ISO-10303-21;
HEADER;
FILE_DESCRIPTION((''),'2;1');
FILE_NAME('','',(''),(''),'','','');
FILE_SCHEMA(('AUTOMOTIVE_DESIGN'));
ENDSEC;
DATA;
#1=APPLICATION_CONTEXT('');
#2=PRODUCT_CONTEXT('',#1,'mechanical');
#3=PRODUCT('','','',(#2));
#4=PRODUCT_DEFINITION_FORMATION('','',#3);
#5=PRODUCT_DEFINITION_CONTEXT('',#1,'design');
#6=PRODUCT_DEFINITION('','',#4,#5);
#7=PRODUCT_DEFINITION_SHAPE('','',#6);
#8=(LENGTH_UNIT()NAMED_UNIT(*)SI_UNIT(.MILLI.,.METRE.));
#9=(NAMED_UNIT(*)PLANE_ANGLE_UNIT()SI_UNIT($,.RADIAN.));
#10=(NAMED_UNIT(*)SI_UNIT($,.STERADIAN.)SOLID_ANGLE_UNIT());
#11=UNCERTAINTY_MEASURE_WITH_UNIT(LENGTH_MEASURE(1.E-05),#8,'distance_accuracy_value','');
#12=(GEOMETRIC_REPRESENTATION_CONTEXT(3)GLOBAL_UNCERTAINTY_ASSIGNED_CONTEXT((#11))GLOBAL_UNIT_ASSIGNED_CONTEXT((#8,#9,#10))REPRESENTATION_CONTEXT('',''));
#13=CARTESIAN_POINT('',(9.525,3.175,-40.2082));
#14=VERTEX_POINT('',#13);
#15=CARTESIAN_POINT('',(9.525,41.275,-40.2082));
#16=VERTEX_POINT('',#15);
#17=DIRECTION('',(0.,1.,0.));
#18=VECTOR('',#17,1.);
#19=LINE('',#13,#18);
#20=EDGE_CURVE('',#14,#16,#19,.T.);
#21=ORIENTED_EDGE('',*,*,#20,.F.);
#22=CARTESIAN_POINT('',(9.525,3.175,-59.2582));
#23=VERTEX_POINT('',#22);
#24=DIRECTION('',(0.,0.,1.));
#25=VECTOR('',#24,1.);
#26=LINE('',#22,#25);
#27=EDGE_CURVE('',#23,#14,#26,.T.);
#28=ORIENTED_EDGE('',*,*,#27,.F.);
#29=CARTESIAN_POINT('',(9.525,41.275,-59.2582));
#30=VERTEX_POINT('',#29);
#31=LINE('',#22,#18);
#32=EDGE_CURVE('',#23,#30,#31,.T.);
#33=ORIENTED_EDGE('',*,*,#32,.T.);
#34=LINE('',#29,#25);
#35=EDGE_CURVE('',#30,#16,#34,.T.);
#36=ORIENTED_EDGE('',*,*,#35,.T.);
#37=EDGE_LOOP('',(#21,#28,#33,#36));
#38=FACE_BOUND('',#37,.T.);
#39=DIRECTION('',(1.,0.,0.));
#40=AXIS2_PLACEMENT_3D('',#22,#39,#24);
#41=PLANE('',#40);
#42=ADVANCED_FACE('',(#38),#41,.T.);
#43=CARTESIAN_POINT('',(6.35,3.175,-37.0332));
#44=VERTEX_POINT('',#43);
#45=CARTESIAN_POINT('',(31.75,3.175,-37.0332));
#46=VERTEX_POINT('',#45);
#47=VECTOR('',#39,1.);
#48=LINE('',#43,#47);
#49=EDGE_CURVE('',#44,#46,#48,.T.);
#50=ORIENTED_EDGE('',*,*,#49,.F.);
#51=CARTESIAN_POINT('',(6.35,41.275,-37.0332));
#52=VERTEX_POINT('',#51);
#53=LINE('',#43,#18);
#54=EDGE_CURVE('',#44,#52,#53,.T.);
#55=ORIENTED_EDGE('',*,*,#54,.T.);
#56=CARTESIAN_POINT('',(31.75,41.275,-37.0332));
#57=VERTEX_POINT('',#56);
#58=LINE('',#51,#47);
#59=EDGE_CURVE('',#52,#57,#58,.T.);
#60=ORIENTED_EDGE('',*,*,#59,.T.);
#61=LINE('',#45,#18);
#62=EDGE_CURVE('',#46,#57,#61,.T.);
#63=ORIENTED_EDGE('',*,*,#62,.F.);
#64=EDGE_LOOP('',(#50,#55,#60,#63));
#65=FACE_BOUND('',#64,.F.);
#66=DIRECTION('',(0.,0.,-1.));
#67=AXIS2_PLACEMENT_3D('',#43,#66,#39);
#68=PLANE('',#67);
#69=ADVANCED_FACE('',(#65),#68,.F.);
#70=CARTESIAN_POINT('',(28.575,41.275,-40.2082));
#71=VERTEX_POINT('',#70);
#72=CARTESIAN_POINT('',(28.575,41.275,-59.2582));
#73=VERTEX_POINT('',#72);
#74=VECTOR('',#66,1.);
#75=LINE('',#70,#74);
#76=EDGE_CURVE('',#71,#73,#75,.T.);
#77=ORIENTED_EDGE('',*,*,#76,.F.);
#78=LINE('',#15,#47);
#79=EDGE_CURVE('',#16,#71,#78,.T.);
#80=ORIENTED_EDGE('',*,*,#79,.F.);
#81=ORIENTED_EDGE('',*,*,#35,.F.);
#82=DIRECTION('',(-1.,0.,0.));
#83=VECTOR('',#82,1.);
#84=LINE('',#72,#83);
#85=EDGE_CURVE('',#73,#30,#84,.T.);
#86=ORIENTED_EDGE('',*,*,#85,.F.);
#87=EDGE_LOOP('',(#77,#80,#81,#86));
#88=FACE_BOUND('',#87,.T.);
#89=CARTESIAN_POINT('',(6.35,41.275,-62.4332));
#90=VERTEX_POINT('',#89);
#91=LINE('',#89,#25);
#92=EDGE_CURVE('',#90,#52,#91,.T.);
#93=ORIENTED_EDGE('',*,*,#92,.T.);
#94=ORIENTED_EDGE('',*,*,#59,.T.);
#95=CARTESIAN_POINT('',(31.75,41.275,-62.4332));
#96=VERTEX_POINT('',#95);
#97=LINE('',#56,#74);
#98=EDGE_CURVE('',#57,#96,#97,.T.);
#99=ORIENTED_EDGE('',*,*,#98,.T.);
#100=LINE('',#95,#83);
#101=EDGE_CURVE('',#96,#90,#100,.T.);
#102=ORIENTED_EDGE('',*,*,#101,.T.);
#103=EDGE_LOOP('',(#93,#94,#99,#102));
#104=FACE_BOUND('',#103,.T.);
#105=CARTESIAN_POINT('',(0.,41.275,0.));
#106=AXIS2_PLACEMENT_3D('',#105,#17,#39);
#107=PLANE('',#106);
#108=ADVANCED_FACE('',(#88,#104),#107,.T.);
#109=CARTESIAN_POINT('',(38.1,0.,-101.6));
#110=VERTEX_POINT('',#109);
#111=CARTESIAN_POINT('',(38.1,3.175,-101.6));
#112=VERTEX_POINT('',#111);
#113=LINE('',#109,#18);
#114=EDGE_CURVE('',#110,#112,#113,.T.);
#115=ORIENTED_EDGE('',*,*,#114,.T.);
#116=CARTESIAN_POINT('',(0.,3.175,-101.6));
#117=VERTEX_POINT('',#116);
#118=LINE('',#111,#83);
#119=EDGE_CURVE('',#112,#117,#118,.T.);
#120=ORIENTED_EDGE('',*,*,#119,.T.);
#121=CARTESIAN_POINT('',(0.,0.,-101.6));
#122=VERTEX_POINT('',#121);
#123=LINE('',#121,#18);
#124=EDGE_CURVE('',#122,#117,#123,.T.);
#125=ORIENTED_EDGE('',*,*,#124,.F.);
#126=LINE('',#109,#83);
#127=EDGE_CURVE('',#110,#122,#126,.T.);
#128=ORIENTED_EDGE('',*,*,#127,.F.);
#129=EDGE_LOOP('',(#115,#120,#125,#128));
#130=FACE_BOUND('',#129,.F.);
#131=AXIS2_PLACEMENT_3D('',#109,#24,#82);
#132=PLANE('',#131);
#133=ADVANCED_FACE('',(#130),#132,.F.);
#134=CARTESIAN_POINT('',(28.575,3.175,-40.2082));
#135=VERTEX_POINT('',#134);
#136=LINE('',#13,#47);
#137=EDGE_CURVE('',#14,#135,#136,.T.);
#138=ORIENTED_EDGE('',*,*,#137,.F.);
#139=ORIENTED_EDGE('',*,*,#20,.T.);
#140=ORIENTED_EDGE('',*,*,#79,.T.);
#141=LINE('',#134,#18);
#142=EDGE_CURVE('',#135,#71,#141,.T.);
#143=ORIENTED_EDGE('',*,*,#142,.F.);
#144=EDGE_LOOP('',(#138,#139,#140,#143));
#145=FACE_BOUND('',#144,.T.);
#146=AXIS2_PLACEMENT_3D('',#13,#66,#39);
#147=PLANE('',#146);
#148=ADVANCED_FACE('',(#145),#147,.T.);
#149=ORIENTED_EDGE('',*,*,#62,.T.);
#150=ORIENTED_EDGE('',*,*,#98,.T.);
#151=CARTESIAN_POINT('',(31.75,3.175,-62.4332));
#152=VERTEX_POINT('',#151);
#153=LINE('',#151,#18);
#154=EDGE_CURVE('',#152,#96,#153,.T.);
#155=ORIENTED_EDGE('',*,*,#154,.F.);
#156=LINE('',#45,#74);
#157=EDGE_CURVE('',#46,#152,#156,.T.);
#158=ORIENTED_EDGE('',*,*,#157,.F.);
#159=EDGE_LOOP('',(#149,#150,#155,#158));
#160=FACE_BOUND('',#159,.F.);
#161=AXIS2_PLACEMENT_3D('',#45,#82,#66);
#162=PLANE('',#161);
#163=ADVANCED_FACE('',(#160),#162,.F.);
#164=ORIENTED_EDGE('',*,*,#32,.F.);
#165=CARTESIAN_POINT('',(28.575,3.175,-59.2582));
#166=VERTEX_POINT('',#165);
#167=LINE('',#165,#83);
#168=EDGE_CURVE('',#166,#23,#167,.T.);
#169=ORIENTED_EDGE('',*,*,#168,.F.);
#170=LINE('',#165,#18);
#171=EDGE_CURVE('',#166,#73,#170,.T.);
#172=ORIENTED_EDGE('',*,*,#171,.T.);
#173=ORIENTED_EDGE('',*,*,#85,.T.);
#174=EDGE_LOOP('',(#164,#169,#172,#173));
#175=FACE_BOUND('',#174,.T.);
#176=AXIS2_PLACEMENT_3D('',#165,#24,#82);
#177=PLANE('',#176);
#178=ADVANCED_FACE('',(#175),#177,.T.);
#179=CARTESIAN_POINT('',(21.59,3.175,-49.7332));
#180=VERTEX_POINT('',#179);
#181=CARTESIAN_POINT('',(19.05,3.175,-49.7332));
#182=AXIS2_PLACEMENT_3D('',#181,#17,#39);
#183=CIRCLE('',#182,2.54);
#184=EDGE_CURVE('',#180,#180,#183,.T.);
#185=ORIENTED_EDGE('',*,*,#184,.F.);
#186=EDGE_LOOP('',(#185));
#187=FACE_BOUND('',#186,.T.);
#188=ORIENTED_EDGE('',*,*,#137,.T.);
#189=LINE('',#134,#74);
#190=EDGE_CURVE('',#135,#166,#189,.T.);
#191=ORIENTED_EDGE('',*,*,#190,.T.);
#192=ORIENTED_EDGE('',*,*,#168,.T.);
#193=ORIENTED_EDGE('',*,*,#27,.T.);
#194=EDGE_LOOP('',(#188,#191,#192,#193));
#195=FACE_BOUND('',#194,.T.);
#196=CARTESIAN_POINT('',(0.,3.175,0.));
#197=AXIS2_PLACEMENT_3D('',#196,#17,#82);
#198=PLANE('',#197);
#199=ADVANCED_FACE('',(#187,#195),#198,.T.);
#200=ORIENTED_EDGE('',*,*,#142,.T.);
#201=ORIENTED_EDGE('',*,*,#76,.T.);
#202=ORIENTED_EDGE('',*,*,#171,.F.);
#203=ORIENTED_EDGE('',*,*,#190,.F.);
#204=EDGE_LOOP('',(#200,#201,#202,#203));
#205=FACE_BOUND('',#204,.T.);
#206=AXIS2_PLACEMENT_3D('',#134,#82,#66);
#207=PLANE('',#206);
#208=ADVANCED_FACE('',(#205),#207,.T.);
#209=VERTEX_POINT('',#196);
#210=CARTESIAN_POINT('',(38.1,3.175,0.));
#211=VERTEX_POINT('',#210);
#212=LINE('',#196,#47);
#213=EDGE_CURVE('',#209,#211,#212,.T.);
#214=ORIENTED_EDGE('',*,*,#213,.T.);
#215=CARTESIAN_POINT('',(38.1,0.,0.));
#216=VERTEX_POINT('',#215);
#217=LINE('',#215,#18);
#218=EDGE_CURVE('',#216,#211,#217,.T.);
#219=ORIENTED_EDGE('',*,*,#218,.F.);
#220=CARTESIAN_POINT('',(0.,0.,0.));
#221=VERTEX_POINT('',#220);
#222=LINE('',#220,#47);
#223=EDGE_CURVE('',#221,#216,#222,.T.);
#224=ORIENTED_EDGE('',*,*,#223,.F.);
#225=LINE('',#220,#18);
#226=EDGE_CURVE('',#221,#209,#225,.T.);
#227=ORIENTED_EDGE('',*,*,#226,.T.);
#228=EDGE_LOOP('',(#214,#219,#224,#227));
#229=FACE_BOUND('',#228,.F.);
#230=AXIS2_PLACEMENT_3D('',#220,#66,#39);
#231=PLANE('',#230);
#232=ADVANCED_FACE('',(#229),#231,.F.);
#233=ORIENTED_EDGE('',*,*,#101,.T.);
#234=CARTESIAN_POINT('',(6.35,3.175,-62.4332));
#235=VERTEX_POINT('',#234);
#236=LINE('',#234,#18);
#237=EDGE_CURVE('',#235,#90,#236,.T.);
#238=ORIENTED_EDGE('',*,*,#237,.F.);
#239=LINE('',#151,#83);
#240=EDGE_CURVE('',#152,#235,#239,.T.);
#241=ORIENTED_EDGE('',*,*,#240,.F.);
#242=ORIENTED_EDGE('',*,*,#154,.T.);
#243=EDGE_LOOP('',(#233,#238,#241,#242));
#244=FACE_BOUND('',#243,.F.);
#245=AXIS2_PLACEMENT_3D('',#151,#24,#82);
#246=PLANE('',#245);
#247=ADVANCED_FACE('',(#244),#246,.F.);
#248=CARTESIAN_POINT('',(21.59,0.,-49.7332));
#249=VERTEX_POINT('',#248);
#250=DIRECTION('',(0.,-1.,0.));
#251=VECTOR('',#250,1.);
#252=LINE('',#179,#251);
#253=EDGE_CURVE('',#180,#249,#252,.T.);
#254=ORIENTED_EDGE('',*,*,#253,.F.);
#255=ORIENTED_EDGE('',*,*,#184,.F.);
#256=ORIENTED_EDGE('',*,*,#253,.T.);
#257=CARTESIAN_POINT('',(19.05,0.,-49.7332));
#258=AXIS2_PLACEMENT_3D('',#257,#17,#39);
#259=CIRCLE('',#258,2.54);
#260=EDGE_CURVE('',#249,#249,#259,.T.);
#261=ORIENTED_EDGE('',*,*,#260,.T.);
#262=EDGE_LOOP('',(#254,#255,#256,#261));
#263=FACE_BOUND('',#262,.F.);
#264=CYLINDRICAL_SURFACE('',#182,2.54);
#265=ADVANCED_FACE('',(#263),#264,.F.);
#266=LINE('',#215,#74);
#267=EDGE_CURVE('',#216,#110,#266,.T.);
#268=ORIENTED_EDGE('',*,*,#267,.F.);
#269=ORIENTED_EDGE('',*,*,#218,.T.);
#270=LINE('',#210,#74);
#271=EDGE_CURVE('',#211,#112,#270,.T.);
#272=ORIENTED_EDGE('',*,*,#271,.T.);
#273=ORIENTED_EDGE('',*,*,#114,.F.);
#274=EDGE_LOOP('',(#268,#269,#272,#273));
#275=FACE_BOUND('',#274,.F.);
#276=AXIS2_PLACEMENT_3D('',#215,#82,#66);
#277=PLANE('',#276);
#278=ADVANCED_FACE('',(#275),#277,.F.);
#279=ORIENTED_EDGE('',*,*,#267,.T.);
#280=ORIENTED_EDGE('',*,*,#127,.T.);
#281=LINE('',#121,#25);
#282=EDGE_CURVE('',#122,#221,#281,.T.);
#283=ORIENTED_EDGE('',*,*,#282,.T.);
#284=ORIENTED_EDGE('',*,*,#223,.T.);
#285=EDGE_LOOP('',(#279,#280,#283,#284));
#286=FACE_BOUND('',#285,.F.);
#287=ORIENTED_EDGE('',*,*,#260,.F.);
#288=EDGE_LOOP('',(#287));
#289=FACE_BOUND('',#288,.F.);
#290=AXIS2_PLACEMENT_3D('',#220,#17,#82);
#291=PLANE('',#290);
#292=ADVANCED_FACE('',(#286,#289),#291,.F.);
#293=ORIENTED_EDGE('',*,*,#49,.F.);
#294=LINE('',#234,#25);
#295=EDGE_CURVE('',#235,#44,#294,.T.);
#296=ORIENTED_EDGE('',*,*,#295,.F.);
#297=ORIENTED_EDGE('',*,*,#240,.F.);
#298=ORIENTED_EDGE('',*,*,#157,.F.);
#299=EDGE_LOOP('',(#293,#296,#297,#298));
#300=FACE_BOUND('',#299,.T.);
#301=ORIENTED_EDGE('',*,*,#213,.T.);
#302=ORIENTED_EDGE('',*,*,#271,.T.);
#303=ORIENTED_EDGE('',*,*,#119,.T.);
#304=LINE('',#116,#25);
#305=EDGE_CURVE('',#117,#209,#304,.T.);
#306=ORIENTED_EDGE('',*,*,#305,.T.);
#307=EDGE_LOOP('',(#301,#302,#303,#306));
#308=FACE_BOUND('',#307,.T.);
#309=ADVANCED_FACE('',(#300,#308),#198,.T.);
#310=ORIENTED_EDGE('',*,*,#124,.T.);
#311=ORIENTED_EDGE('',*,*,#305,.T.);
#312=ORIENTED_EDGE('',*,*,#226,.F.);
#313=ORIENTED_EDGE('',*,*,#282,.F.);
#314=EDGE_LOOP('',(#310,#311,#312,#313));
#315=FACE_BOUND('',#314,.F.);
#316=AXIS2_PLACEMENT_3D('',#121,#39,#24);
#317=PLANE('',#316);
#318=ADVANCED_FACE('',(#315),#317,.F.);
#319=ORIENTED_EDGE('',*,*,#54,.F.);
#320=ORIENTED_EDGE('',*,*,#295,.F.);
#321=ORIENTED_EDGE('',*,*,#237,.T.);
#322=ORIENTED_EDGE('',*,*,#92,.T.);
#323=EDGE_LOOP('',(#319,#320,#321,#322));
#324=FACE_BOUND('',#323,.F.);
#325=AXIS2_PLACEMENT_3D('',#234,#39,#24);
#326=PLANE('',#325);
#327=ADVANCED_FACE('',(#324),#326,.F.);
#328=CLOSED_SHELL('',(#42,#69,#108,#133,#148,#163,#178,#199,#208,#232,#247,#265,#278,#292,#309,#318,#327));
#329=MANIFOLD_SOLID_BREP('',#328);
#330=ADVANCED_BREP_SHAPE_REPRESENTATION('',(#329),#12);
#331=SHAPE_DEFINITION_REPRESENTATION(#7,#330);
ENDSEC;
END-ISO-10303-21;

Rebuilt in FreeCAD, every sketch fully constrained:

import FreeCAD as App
import Part
import Sketcher
from FreeCAD import Vector
Q = App.Units.Quantity

doc = App.newDocument("Part")
params = doc.addObject("Spreadsheet::Sheet", "Params")
for row, (alias, value) in enumerate([
    ("sketch1_height", "4 in"),
    ("sketch1_width", "1.5 in"),
    ("pad1_length", "0.125 in"),
    ("sketch2_width", "1 in"),
    ("pad2_length", "1.5 in"),
    ("sketch3_diameter", "0.2 in"),
    ("pocket1_length", "0.125 in"),
], start=1):
    params.set(f"A{row}", alias)
    params.set(f"B{row}", "=" + value)
    params.setAlias(f"B{row}", alias)

body = doc.addObject("PartDesign::Body", "Body")

# Sketch on XZ plane
sketch1 = doc.addObject("Sketcher::SketchObject", "Sketch")
body.addObject(sketch1)
sketch1.AttachmentSupport = (doc.XZ_Plane, [""])
sketch1.MapMode = "FlatFace"
sketch1.addGeometry([
    Part.LineSegment(Vector(0, -102, 0), Vector(0, 0, 0)),
    Part.LineSegment(Vector(0, 0, 0), Vector(38, 0, 0)),
    Part.LineSegment(Vector(38, 0, 0), Vector(38, -102, 0)),
    Part.LineSegment(Vector(38, -102, 0), Vector(0, -102, 0)),
], False)
sketch1.addConstraint([
    Sketcher.Constraint("Coincident", 0, 2, 1, 1),
    Sketcher.Constraint("Coincident", 1, 2, 2, 1),
    Sketcher.Constraint("Coincident", 2, 2, 3, 1),
    Sketcher.Constraint("Coincident", 3, 2, 0, 1),
    Sketcher.Constraint("Vertical", 0),
    Sketcher.Constraint("Horizontal", 1),
    Sketcher.Constraint("Vertical", 2),
    Sketcher.Constraint("Horizontal", 3),
    Sketcher.Constraint("Coincident", 0, 2, -1, 1),
    Sketcher.Constraint("DistanceY", 0, 1, 0, 2, Q("4 in")),
    Sketcher.Constraint("DistanceX", 1, 1, 1, 2, Q("1.5 in")),
])
sketch1.setExpression("Constraints[9]", "Params.sketch1_height")
sketch1.setExpression("Constraints[10]", "Params.sketch1_width")
pad1 = doc.addObject("PartDesign::Pad", "Pad")
body.addObject(pad1)
pad1.Profile = sketch1
pad1.setExpression("Length", "Params.pad1_length")
pad1.Reversed = True

# Sketch on XZ plane
sketch2 = doc.addObject("Sketcher::SketchObject", "Sketch001")
body.addObject(sketch2)
sketch2.AttachmentSupport = (doc.XZ_Plane, [""])
sketch2.MapMode = "FlatFace"
sketch2.AttachmentOffset = App.Placement(Vector(0, 0, -0.125 * 25.4), App.Rotation())
sketch2.addGeometry([
    Part.LineSegment(Vector(32, -37, 0), Vector(32, -62, 0)),  # 0
    Part.LineSegment(Vector(32, -62, 0), Vector(6, -62, 0)),  # 1
    Part.LineSegment(Vector(6, -62, 0), Vector(6, -37, 0)),  # 2
    Part.LineSegment(Vector(6, -37, 0), Vector(32, -37, 0)),  # 3
    Part.LineSegment(Vector(10, -59, 0), Vector(29, -59, 0)),  # 4
    Part.LineSegment(Vector(29, -59, 0), Vector(29, -40, 0)),  # 5
    Part.LineSegment(Vector(29, -40, 0), Vector(10, -40, 0)),  # 6
    Part.LineSegment(Vector(10, -40, 0), Vector(10, -59, 0)),  # 7
], False)
sketch2.addConstraint([
    Sketcher.Constraint("Coincident", 0, 2, 1, 1),
    Sketcher.Constraint("Coincident", 1, 2, 2, 1),
    Sketcher.Constraint("Coincident", 2, 2, 3, 1),
    Sketcher.Constraint("Coincident", 3, 2, 0, 1),
    Sketcher.Constraint("Coincident", 4, 2, 5, 1),
    Sketcher.Constraint("Coincident", 5, 2, 6, 1),
    Sketcher.Constraint("Coincident", 6, 2, 7, 1),
    Sketcher.Constraint("Coincident", 7, 2, 4, 1),
    Sketcher.Constraint("Vertical", 0),
    Sketcher.Constraint("Horizontal", 1),
    Sketcher.Constraint("Vertical", 2),
    Sketcher.Constraint("Horizontal", 3),
    Sketcher.Constraint("Horizontal", 4),
    Sketcher.Constraint("Vertical", 5),
    Sketcher.Constraint("Horizontal", 6),
    Sketcher.Constraint("Vertical", 7),
    Sketcher.Constraint("Equal", 3, 0),
    Sketcher.Constraint("Equal", 6, 5),
    Sketcher.Constraint("DistanceX", 1, 2, 1, 1, Q("1 in")),
    Sketcher.Constraint("DistanceX", -1, 1, 1, 2, Q("0.25 in")),
    Sketcher.Constraint("DistanceX", 4, 2, 0, 2, Q("0.125 in")),
    Sketcher.Constraint("DistanceY", 0, 2, 4, 2, Q("0.125 in")),
    Sketcher.Constraint("DistanceY", 5, 2, 3, 2, Q("0.125 in")),
    Sketcher.Constraint("DistanceY", 0, 2, -1, 1, Q("2.458 in")),
])
sketch2.setExpression("Constraints[18]", "Params.sketch2_width")
pad2 = doc.addObject("PartDesign::Pad", "Pad001")
body.addObject(pad2)
pad2.Profile = sketch2
pad2.setExpression("Length", "Params.pad2_length")
pad2.Reversed = True

# Sketch on XZ plane
sketch3 = doc.addObject("Sketcher::SketchObject", "Sketch002")
body.addObject(sketch3)
sketch3.AttachmentSupport = (doc.XZ_Plane, [""])
sketch3.MapMode = "FlatFace"
sketch3.AttachmentOffset = App.Placement(Vector(0, 0, -0.125 * 25.4), App.Rotation())
sketch3.addGeometry(Part.Circle(Vector(19.1, -49.7, 0), Vector(0, 0, 1), 2.5), False)
sketch3.addConstraint([
    Sketcher.Constraint("Diameter", 0, Q("0.2 in")),
    Sketcher.Constraint("DistanceX", -1, 1, 0, 3, Q("0.75 in")),
    Sketcher.Constraint("DistanceY", 0, 3, -1, 1, Q("1.958 in")),
])
sketch3.setExpression("Constraints[0]", "Params.sketch3_diameter")
pocket1 = doc.addObject("PartDesign::Pocket", "Pocket")
body.addObject(pocket1)
pocket1.Profile = sketch3
pocket1.setExpression("Length", "Params.pocket1_length")
pocket1.Reversed = True

doc.recompute()
